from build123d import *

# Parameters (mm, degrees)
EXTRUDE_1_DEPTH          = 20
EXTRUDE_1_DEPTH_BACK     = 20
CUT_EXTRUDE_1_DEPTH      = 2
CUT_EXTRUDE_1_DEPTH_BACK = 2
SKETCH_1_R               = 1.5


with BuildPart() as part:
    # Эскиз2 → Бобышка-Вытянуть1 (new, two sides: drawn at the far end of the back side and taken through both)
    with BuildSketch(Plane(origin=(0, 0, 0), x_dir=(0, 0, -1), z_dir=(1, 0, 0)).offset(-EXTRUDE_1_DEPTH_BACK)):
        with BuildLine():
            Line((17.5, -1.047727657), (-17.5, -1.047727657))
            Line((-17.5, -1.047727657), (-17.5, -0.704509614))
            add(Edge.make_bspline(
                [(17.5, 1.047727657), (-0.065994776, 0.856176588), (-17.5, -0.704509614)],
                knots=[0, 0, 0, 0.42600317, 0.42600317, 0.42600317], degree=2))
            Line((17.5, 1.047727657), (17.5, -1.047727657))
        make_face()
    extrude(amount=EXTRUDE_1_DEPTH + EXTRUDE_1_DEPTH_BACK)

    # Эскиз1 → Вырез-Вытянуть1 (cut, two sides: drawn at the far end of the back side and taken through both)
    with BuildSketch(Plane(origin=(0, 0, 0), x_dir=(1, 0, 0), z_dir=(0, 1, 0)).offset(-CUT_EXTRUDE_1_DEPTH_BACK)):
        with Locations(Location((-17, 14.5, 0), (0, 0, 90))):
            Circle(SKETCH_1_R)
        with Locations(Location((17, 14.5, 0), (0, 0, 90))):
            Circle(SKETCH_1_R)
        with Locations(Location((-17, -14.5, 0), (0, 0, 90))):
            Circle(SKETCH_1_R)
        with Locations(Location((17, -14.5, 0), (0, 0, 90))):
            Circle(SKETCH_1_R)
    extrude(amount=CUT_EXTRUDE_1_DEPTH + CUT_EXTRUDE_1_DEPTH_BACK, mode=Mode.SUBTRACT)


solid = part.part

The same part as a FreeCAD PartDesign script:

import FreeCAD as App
import Part
import Sketcher
from FreeCAD import Vector

doc = App.newDocument("Part")
body = doc.addObject("PartDesign::Body", "Body")

sketch1 = body.newObject("Sketcher::SketchObject", "Sketch")
sketch1.AttachmentSupport = (doc.getObject("YZ_Plane"), [""])
sketch1.MapMode = "FlatFace"
sketch1.addGeometry(Part.LineSegment(Vector(-1.047728, 17.5, 0), Vector(-1.047728, -17.5, 0)), False)
sketch1.addGeometry(Part.LineSegment(Vector(-1.047728, -17.5, 0), Vector(1.047728, -17.5, 0)), False)
sketch1.addGeometry(Part.BSplineCurve([Vector(1.047728, -17.5, 0), Vector(0.856177, 0.065995, 0), Vector(-0.70451, 17.5, 0)], [3, 3], [0, 0.42600317], False, 2, [1, 1, 1], False), False)
sketch1.addGeometry(Part.LineSegment(Vector(-0.70451, 17.5, 0), Vector(-1.047728, 17.5, 0)), False)
sketch1.addConstraint(Sketcher.Constraint("Block", 2))
sketch1.addConstraint(Sketcher.Constraint("Coincident", 0, 2, 1, 1))
sketch1.addConstraint(Sketcher.Constraint("Coincident", 1, 2, 2, 1))
sketch1.addConstraint(Sketcher.Constraint("Coincident", 2, 2, 3, 1))
sketch1.addConstraint(Sketcher.Constraint("Coincident", 3, 2, 0, 1))
sketch1.addConstraint(Sketcher.Constraint("Vertical", 0))
sketch1.addConstraint(Sketcher.Constraint("Horizontal", 1))
sketch1.addConstraint(Sketcher.Constraint("Horizontal", 3))
sketch1.addConstraint(Sketcher.Constraint("DistanceX", 3, 2, 3, 1, 0.343218))
pad1 = body.newObject("PartDesign::Pad", "Pad")
pad1.Profile = sketch1
pad1.Type = "TwoLengths"
pad1.Length = 20
pad1.Length2 = 20

sketch2 = body.newObject("Sketcher::SketchObject", "Sketch001")
sketch2.AttachmentSupport = (doc.getObject("XZ_Plane"), [""])
sketch2.MapMode = "FlatFace"
sketch2.addGeometry(Part.Circle(Vector(-17, -14.5, 0), Vector(0, 0, 1), 1.5), False)
sketch2.addGeometry(Part.Circle(Vector(17, -14.5, 0), Vector(0, 0, 1), 1.5), False)
sketch2.addGeometry(Part.Circle(Vector(-17, 14.5, 0), Vector(0, 0, 1), 1.5), False)
sketch2.addGeometry(Part.Circle(Vector(17, 14.5, 0), Vector(0, 0, 1), 1.5), False)
sketch2.addConstraint(Sketcher.Constraint("Equal", 0, 1))
sketch2.addConstraint(Sketcher.Constraint("Equal", 1, 2))
sketch2.addConstraint(Sketcher.Constraint("Equal", 2, 3))
sketch2.addConstraint(Sketcher.Constraint("Symmetric", 1, 3, 2, 3, -1, 1))
sketch2.addConstraint(Sketcher.Constraint("Symmetric", 0, 3, 3, 3, -1, 1))
sketch2.addConstraint(Sketcher.Constraint("Symmetric", 0, 3, 1, 3, -2))
sketch2.addConstraint(Sketcher.Constraint("Diameter", 0, 3.0))
sketch2.addConstraint(Sketcher.Constraint("DistanceX", 0, 3, -1, 1, 17.0))
sketch2.addConstraint(Sketcher.Constraint("DistanceY", 0, 3, 2, 3, 29.0))
pocket1 = body.newObject("PartDesign::Pocket", "Pocket")
pocket1.Profile = sketch2
pocket1.Type = "ThroughAll"
pocket1.Midplane = True

doc.recompute()
